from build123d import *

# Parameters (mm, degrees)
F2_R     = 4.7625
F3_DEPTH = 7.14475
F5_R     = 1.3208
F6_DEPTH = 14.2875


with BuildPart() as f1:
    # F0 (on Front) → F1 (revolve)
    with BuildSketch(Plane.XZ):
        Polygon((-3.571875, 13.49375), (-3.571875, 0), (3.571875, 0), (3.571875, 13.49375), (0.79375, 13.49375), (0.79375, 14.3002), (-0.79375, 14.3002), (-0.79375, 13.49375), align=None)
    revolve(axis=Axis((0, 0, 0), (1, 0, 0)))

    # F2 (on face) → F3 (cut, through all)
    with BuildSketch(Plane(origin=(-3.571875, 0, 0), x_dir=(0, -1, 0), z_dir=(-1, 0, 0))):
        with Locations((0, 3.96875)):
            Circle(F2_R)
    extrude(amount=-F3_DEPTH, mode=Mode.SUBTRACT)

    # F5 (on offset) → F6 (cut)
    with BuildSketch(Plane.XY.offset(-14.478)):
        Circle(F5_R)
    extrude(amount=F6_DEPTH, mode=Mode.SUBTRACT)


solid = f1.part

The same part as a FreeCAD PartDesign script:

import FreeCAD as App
import Part
import Sketcher
from FreeCAD import Vector
Q = App.Units.Quantity


def add_polygon(sketch, points):
    """Adds a closed chain of lines whose ends are joined by coincident constraints."""
    first, n = sketch.GeometryCount, len(points)
    for a, b in zip(points, points[1:] + points[:1]):
        sketch.addGeometry(Part.LineSegment(App.Vector(*a, 0), App.Vector(*b, 0)), False)
    for i in range(n):
        sketch.addConstraint(Sketcher.Constraint("Coincident", first + i, 2, first + (i + 1) % n, 1))

doc = App.newDocument("Part")
body = doc.addObject("PartDesign::Body", "Body")

sketch1 = body.newObject("Sketcher::SketchObject", "Sketch")
sketch1.AttachmentSupport = (doc.getObject("XZ_Plane"), [""])
sketch1.MapMode = "FlatFace"
add_polygon(sketch1, [(-3.6, 13.5), (-3.6, 0), (3.6, 0), (3.6, 13.5), (0.8, 13.5), (0.8, 14.3), (-0.8, 14.3), (-0.8, 13.5)])
sketch1.addConstraint([
    Sketcher.Constraint("Vertical", 0),
    Sketcher.Constraint("Horizontal", 1),
    Sketcher.Constraint("Vertical", 2),
    Sketcher.Constraint("Horizontal", 3),
    Sketcher.Constraint("Vertical", 4),
    Sketcher.Constraint("Horizontal", 5),
    Sketcher.Constraint("Vertical", 6),
    Sketcher.Constraint("Horizontal", 7),
    Sketcher.Constraint("Symmetric", 0, 2, 1, 2, -1, 1),
    Sketcher.Constraint("Symmetric", 3, 2, 6, 2, -2),
    Sketcher.Constraint("DistanceX", 1, 1, 1, 2, Q("0.28125 in")),
    Sketcher.Constraint("DistanceX", 3, 2, 3, 1, Q("0.109375 in")),
    Sketcher.Constraint("DistanceY", 0, 2, 0, 1, Q("0.53125 in")),
    Sketcher.Constraint("DistanceY", -1, 1, 4, 2, Q("0.563 in")),
])
revolution = body.newObject("PartDesign::Revolution", "Revolution")
revolution.Profile = sketch1
revolution.ReferenceAxis = (sketch1, ["H_Axis"])
revolution.Angle = 360

sketch2 = body.newObject("Sketcher::SketchObject", "Sketch001")
sketch2.AttachmentSupport = (doc.getObject("YZ_Plane"), [""])
sketch2.MapMode = "FlatFace"
sketch2.AttachmentOffset = App.Placement(Vector(0, 0, -0.140625 * 25.4), App.Rotation())
sketch2.addGeometry(Part.Circle(Vector(0, 4, 0), Vector(0, 0, 1), 4.8), False)
sketch2.addConstraint([
    Sketcher.Constraint("PointOnObject", 0, 3, -2),
    Sketcher.Constraint("Diameter", 0, Q("0.375 in")),
    Sketcher.Constraint("DistanceY", -1, 1, 0, 3, Q("0.15625 in")),
])
pocket1 = body.newObject("PartDesign::Pocket", "Pocket")
pocket1.Profile = sketch2
pocket1.Type = "ThroughAll"
pocket1.Reversed = True

sketch3 = body.newObject("Sketcher::SketchObject", "Sketch002")
sketch3.AttachmentSupport = (doc.getObject("XY_Plane"), [""])
sketch3.MapMode = "FlatFace"
sketch3.AttachmentOffset = App.Placement(Vector(0, 0, -0.57 * 25.4), App.Rotation())
sketch3.addGeometry(Part.Circle(Vector(0, 0, 0), Vector(0, 0, 1), 1.3), False)
sketch3.addConstraint([
    Sketcher.Constraint("Coincident", 0, 3, -1, 1),
    Sketcher.Constraint("Diameter", 0, Q("0.104 in")),
])
pocket2 = body.newObject("PartDesign::Pocket", "Pocket001")
pocket2.Profile = sketch3
pocket2.Length = Q("0.5625 in")
pocket2.Reversed = True

doc.recompute()
